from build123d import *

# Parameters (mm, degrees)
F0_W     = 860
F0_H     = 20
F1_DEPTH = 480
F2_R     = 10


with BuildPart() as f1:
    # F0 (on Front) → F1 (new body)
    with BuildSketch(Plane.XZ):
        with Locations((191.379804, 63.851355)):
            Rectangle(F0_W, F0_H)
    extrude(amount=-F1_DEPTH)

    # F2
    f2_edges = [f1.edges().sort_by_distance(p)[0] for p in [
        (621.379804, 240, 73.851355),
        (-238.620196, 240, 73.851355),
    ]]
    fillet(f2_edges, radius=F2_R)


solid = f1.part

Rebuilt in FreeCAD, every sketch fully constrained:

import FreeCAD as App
import Part
import Sketcher


def edges_at(feature, points):
    """Names of the edges that pass closest to the given points."""
    edges = feature.Shape.Edges
    near = lambda p: min(range(len(edges)), key=lambda i: edges[i].distToShape(Part.Vertex(*p))[0])
    return sorted({f"Edge{near(p) + 1}" for p in points})


def add_polygon(sketch, points):
    """Adds a closed chain of lines whose ends are joined by coincident constraints."""
    first, n = sketch.GeometryCount, len(points)
    for a, b in zip(points, points[1:] + points[:1]):
        sketch.addGeometry(Part.LineSegment(App.Vector(*a, 0), App.Vector(*b, 0)), False)
    for i in range(n):
        sketch.addConstraint(Sketcher.Constraint("Coincident", first + i, 2, first + (i + 1) % n, 1))

doc = App.newDocument("Part")
body = doc.addObject("PartDesign::Body", "Body")

# Sketch on XZ plane
sketch1 = doc.addObject("Sketcher::SketchObject", "Sketch")
body.addObject(sketch1)
sketch1.AttachmentSupport = (doc.XZ_Plane, [""])
sketch1.MapMode = "FlatFace"
add_polygon(sketch1, [(-239, 74), (-239, 54), (621, 54), (621, 74)])  # lines 0-3
sketch1.addConstraint([
    Sketcher.Constraint("Vertical", 0),
    Sketcher.Constraint("Horizontal", 1),
    Sketcher.Constraint("Vertical", 2),
    Sketcher.Constraint("Horizontal", 3),
    Sketcher.Constraint("DistanceX", 1, 1, 1, 2, 860.0),
    Sketcher.Constraint("DistanceY", 0, 2, 0, 1, 20.0),
    Sketcher.Constraint("DistanceX", 0, 2, -1, 1, 238.620196),
    Sketcher.Constraint("DistanceY", -1, 1, 0, 2, 53.851355),
])
pad1 = doc.addObject("PartDesign::Pad", "Pad")
body.addObject(pad1)
pad1.Profile = sketch1
pad1.Length = 480
pad1.Reversed = True
doc.recompute()

fillet = doc.addObject("PartDesign::Fillet", "Fillet")
body.addObject(fillet)
fillet.Base = (pad1, edges_at(pad1, [(621.38, 240, 73.851), (-238.62, 240, 73.851)]))
fillet.Radius = 10

doc.recompute()
